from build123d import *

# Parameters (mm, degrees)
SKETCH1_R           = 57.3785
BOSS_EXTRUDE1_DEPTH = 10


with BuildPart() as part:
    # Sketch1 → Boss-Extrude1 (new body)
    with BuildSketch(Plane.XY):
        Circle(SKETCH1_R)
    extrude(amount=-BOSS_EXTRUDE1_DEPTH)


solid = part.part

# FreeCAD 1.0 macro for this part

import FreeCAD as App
import Part
import Sketcher

V = App.Vector
Q = App.Units.Quantity

doc = App.newDocument("Part")
params = doc.addObject("Spreadsheet::Sheet", "Params")
for row, (alias, value) in enumerate([
    ("pad1_length", "10 mm"),
], start=1):
    params.set(f"A{row}", alias)
    params.set(f"B{row}", "=" + value)
    params.setAlias(f"B{row}", alias)

body = doc.addObject("PartDesign::Body", "Body")

# Sketch on XY plane
sketch1 = doc.addObject("Sketcher::SketchObject", "Sketch")
body.addObject(sketch1)
sketch1.AttachmentSupport = (doc.XY_Plane, [""])
sketch1.MapMode = "FlatFace"
sketch1.addGeometry(Part.Circle(V(0, 0, 0), V(0, 0, 1), 57), False)
sketch1.addConstraint(Sketcher.Constraint("Coincident", 0, 3, -1, 1))
sketch1.addConstraint(Sketcher.Constraint("Diameter", 0, Q("114.757 mm")))
pad1 = doc.addObject("PartDesign::Pad", "Pad")
body.addObject(pad1)
pad1.Profile = sketch1
pad1.setExpression("Length", "Params.pad1_length")
pad1.Reversed = True

doc.recompute()
